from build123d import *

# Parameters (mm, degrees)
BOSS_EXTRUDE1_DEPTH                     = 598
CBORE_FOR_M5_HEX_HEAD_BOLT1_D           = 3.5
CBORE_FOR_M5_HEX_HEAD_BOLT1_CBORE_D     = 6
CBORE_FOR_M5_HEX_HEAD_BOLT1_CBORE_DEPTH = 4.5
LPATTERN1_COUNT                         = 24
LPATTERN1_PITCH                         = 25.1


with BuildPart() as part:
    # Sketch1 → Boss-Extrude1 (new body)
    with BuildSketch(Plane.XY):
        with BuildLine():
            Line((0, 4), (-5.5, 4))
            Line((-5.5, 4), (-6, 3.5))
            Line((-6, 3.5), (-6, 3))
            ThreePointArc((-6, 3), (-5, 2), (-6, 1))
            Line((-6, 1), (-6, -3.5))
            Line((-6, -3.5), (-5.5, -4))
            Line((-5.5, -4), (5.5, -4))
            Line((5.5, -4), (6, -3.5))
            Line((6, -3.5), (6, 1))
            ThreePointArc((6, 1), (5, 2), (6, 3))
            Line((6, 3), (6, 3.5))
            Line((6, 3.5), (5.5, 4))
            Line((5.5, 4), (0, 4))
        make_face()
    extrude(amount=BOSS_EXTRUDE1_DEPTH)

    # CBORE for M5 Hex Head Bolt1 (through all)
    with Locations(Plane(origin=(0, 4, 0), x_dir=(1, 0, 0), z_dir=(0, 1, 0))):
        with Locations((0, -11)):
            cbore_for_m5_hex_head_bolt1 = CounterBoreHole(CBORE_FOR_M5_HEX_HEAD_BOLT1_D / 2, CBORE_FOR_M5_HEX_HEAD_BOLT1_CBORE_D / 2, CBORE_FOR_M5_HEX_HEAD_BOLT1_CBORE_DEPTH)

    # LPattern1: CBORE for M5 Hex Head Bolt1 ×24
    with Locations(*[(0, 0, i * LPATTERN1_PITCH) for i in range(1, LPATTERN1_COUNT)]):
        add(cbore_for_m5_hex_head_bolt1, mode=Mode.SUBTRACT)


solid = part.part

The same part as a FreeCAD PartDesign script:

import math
import FreeCAD as App
import Part
import Sketcher
from FreeCAD import Vector

doc = App.newDocument("Part")
body = doc.addObject("PartDesign::Body", "Body")

# Sketch on XY plane
sketch1 = body.newObject("Sketcher::SketchObject", "Sketch")
sketch1.AttachmentSupport = (doc.getObject("XY_Plane"), [""])
sketch1.MapMode = "FlatFace"
sketch1.addGeometry([
    Part.LineSegment(Vector(-5.5, 4, 0), Vector(-6, 3.5, 0)),  # 0
    Part.LineSegment(Vector(-6, 3.5, 0), Vector(-6, 3, 0)),  # 1
    Part.ArcOfCircle(Part.Circle(Vector(-6, 2, 0), Vector(0, 0, 1), 1), math.radians(-90), math.radians(90)),  # 2
    Part.LineSegment(Vector(-6, 1, 0), Vector(-6, -3.5, 0)),  # 3
    Part.LineSegment(Vector(-6, -3.5, 0), Vector(-5.5, -4, 0)),  # 4
    Part.LineSegment(Vector(-5.5, -4, 0), Vector(5.5, -4, 0)),  # 5
    Part.LineSegment(Vector(5.5, -4, 0), Vector(6, -3.5, 0)),  # 6
    Part.LineSegment(Vector(6, -3.5, 0), Vector(6, 1, 0)),  # 7
    Part.ArcOfCircle(Part.Circle(Vector(6, 2, 0), Vector(0, 0, 1), 1), math.radians(90), math.radians(270)),  # 8
    Part.LineSegment(Vector(6, 3, 0), Vector(6, 3.5, 0)),  # 9
    Part.LineSegment(Vector(6, 3.5, 0), Vector(5.5, 4, 0)),  # 10
    Part.LineSegment(Vector(5.5, 4, 0), Vector(-5.5, 4, 0)),  # 11
], False)
sketch1.addConstraint([
    Sketcher.Constraint("Coincident", 0, 2, 1, 1),
    Sketcher.Constraint("Coincident", 1, 2, 2, 2),
    Sketcher.Constraint("Coincident", 2, 1, 3, 1),
    Sketcher.Constraint("Coincident", 3, 2, 4, 1),
    Sketcher.Constraint("Coincident", 4, 2, 5, 1),
    Sketcher.Constraint("Coincident", 5, 2, 6, 1),
    Sketcher.Constraint("Coincident", 6, 2, 7, 1),
    Sketcher.Constraint("Coincident", 7, 2, 8, 2),
    Sketcher.Constraint("Coincident", 8, 1, 9, 1),
    Sketcher.Constraint("Coincident", 9, 2, 10, 1),
    Sketcher.Constraint("Coincident", 10, 2, 11, 1),
    Sketcher.Constraint("Coincident", 11, 2, 0, 1),
    Sketcher.Constraint("Vertical", 1),
    Sketcher.Constraint("Vertical", 3),
    Sketcher.Constraint("Horizontal", 5),
    Sketcher.Constraint("Vertical", 7),
    Sketcher.Constraint("Vertical", 9),
    Sketcher.Constraint("Horizontal", 11),
    Sketcher.Constraint("Equal", 2, 8),
    Sketcher.Constraint("Symmetric", 0, 2, 6, 2, -1, 1),
    Sketcher.Constraint("Symmetric", 3, 2, 9, 2, -1, 1),
    Sketcher.Constraint("Symmetric", 4, 2, 10, 2, -1, 1),
    Sketcher.Constraint("Symmetric", 2, 3, 8, 3, -2),
    Sketcher.Constraint("Symmetric", 3, 2, 6, 2, -2),
    Sketcher.Constraint("Perpendicular", 0, 4),
    Sketcher.Constraint("Perpendicular", 4, 6),
    Sketcher.Constraint("Vertical", 2, 3, 0, 2),
    Sketcher.Constraint("Vertical", 5, 2, 10, 2),
    Sketcher.Constraint("Radius", 2, 1.0),
    Sketcher.Constraint("DistanceX", 5, 1, 5, 2, 11.0),
    Sketcher.Constraint("DistanceY", 1, 2, 1, 1, 0.5),
    Sketcher.Constraint("DistanceY", 3, 2, 3, 1, 4.5),
    Sketcher.Constraint("DistanceX", 2, 3, -1, 1, 6.0),
])
pad1 = body.newObject("PartDesign::Pad", "Pad")
pad1.Profile = sketch1
pad1.Length = 598

# Sketch on XZ plane
sketch2 = body.newObject("Sketcher::SketchObject", "Sketch001")
sketch2.AttachmentSupport = (doc.getObject("XZ_Plane"), [""])
sketch2.MapMode = "FlatFace"
sketch2.AttachmentOffset = App.Placement(Vector(0, 0, -4), App.Rotation())
sketch2.addGeometry(Part.Circle(Vector(0, 11, 0), Vector(0, 0, 1), 1.8), False)
sketch2.addConstraint([
    Sketcher.Constraint("PointOnObject", 0, 3, -2),
    Sketcher.Constraint("Diameter", 0, 3.5),
    Sketcher.Constraint("DistanceY", -1, 1, 0, 3, 11.0),
])
doc.recompute()
hole = body.newObject("PartDesign::Hole", "Hole")
hole.Profile = sketch2
hole.ThreadType = "None"
hole.Diameter = 3.5
hole.DepthType = "ThroughAll"
hole.HoleCutType = "Counterbore"
hole.HoleCutDiameter = 6
hole.HoleCutDepth = 4.5
hole.Reversed = True
doc.recompute()

linearpattern = body.newObject("PartDesign::LinearPattern", "LinearPattern")
linearpattern.Originals = [hole]
linearpattern.Direction = (doc.getObject("Z_Axis"), [""])
linearpattern.Mode = "offset"
linearpattern.Offset = 25.1
linearpattern.Occurrences = 24
body.Tip = linearpattern

doc.recompute()
